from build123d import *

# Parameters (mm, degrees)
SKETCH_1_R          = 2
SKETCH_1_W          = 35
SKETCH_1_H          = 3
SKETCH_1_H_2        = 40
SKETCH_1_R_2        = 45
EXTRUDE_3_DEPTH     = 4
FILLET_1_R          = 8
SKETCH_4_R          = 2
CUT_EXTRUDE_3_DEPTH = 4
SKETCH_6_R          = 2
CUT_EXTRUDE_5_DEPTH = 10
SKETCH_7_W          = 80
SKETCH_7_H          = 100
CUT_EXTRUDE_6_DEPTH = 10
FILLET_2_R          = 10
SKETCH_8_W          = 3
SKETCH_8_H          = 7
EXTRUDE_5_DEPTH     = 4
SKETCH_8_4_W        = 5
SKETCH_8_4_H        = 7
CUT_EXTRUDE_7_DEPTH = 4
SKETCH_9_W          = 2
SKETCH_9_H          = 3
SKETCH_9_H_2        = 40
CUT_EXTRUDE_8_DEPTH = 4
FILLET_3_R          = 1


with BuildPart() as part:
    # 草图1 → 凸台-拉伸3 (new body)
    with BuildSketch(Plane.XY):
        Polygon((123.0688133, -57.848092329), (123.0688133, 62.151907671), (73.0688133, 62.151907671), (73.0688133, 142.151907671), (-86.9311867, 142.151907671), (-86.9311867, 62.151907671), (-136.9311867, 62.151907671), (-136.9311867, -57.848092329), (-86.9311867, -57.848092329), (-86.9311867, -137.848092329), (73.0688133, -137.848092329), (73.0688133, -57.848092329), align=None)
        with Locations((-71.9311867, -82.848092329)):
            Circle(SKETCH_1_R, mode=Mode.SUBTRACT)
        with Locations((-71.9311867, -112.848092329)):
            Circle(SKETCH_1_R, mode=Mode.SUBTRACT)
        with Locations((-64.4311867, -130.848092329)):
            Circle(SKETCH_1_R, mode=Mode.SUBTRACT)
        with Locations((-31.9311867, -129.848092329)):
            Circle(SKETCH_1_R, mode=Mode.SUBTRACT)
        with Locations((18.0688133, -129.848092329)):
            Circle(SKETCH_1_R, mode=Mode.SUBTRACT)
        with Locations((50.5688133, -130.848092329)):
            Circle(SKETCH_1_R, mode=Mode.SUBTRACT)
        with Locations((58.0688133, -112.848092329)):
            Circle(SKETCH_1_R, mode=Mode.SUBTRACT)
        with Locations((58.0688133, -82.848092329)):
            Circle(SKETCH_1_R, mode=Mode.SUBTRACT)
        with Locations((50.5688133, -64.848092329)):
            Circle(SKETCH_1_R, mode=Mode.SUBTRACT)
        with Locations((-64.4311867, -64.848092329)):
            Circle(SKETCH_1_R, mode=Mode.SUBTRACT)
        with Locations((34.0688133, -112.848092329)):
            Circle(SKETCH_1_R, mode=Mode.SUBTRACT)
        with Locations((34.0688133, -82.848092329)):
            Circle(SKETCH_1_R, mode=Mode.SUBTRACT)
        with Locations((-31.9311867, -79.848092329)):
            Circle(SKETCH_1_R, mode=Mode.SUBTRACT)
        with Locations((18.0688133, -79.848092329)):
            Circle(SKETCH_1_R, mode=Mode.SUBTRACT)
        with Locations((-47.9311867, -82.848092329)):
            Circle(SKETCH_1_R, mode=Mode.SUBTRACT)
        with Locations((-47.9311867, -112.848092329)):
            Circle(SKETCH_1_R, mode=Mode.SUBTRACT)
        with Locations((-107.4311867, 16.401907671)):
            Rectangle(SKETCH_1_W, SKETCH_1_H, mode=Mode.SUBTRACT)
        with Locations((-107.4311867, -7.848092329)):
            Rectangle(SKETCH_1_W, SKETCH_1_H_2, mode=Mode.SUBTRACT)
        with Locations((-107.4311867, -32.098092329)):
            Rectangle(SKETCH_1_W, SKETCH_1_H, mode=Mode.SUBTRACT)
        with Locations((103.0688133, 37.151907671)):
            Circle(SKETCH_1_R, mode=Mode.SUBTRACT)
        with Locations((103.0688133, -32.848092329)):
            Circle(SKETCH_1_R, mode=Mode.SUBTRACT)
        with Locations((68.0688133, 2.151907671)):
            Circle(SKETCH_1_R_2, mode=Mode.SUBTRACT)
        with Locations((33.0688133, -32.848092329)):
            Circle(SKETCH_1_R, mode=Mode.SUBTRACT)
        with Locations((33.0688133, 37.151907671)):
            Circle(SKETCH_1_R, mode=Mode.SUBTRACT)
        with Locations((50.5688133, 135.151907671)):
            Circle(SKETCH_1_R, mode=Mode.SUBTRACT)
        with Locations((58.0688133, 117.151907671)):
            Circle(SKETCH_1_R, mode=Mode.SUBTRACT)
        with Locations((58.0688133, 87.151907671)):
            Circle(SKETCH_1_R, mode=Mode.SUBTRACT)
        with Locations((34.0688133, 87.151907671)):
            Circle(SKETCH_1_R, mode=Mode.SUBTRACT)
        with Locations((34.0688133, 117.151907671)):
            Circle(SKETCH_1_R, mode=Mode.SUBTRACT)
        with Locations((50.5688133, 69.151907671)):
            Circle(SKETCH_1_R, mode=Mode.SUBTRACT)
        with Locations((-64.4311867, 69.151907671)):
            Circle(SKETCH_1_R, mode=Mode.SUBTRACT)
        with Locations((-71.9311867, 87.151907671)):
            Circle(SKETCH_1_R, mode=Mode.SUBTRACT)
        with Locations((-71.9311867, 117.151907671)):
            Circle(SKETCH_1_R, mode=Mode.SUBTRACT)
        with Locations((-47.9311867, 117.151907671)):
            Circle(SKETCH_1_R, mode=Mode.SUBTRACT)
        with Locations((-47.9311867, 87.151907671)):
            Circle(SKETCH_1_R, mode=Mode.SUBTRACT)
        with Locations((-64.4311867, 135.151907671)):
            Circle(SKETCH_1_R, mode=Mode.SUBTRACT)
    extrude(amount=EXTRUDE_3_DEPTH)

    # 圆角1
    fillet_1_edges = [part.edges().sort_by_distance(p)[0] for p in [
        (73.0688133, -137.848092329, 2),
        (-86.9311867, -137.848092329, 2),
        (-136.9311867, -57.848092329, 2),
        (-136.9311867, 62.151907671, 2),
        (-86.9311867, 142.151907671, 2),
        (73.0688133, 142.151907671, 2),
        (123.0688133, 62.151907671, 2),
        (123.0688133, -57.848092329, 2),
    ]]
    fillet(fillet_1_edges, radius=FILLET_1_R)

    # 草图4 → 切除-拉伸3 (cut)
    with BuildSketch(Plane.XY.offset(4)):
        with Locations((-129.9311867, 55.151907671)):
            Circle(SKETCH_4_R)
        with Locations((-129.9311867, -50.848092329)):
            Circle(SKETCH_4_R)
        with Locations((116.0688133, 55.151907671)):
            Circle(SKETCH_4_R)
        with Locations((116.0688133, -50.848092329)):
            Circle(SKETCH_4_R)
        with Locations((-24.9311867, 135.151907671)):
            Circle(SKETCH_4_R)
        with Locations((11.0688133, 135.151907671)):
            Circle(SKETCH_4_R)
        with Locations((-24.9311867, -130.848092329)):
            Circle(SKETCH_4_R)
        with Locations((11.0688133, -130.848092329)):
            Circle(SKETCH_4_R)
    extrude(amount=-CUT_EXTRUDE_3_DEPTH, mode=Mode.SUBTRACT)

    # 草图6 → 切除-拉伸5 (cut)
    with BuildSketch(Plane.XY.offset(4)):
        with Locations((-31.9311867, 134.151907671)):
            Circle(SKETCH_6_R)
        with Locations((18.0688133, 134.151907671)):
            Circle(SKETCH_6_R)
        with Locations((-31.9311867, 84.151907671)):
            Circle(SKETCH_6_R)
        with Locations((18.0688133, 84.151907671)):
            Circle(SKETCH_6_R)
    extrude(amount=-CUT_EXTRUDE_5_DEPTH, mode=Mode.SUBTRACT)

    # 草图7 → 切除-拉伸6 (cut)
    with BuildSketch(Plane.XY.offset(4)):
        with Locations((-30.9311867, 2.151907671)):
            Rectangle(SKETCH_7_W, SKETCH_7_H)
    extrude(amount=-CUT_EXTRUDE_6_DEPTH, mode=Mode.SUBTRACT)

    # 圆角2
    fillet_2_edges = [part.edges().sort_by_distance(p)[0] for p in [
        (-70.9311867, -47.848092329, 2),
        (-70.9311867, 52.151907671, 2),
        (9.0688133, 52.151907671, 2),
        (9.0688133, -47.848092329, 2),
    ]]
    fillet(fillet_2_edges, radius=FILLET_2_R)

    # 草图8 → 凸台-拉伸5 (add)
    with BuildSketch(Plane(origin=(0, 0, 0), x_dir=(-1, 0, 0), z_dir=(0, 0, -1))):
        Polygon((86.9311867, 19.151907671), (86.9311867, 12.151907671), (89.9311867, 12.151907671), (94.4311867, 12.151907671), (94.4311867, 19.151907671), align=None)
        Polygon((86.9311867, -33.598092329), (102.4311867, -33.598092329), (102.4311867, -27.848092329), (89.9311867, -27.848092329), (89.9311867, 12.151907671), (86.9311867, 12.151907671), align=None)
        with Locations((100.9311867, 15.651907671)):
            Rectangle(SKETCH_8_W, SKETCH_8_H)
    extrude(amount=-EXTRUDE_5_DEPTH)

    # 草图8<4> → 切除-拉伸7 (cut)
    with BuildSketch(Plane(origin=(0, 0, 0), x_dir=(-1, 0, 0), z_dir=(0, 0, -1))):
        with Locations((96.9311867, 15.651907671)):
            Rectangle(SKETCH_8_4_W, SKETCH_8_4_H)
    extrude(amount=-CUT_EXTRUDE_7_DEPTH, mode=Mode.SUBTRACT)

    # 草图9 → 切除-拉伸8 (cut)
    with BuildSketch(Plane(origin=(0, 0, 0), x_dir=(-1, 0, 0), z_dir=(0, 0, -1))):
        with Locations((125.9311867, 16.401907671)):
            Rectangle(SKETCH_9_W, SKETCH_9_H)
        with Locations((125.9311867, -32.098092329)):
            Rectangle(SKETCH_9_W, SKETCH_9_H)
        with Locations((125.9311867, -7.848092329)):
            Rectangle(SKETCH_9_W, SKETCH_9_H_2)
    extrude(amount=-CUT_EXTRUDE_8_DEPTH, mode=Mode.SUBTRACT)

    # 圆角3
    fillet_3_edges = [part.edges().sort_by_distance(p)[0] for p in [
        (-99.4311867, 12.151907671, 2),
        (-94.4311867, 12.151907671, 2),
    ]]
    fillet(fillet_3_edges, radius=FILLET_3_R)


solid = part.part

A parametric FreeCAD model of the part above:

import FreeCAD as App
import Part
import Sketcher


def edges_at(feature, points):
    """Names of the edges that pass closest to the given points."""
    edges = feature.Shape.Edges
    near = lambda p: min(range(len(edges)), key=lambda i: edges[i].distToShape(Part.Vertex(*p))[0])
    return sorted({f"Edge{near(p) + 1}" for p in points})

doc = App.newDocument("Part")
params = doc.addObject("Spreadsheet::Sheet", "Params")
for row, (alias, value) in enumerate([
    ("sketch1_diameter", "4 mm"),
    ("sketch1_diameter2", "90 mm"),
    ("sketch1_width", "50 mm"),
    ("sketch1_width2", "160 mm"),
    ("sketch1_width3", "35 mm"),
    ("pad1_length", "4 mm"),
    ("fillet_radius", "8 mm"),
    ("sketch2_diameter", "4 mm"),
    ("pocket1_length", "4 mm"),
    ("sketch3_diameter", "4 mm"),
    ("pocket2_length", "10 mm"),
    ("sketch4_width", "80 mm"),
    ("sketch4_height", "100 mm"),
    ("pocket3_length", "10 mm"),
    ("fillet2_radius", "10 mm"),
    ("sketch5_width", "3 mm"),
    ("sketch5_height", "40 mm"),
    ("sketch5_height2", "7 mm"),
    ("sketch5_width2", "15.5 mm"),
    ("sketch5_width3", "12.5 mm"),
    ("pad2_length", "4 mm"),
    ("sketch6_width", "5 mm"),
    ("sketch6_height", "7 mm"),
    ("pocket4_length", "4 mm"),
    ("sketch7_width", "2 mm"),
    ("sketch7_height", "3 mm"),
    ("sketch7_height2", "40 mm"),
    ("pocket5_length", "4 mm"),
    ("fillet3_radius", "1 mm"),
], start=1):
    params.set(f"A{row}", alias)
    params.set(f"B{row}", "=" + value)
    params.setAlias(f"B{row}", alias)

body = doc.addObject("PartDesign::Body", "Body")

sketch1 = body.newObject("Sketcher::SketchObject", "Sketch")
sketch1.AttachmentSupport = (doc.getObject("XY_Plane"), [""])
sketch1.MapMode = "FlatFace"
sketch1.addGeometry([
    Part.LineSegment(App.Vector(123.1, -57.8, 0), App.Vector(123.1, 62.2, 0)),
    Part.LineSegment(App.Vector(123.1, 62.2, 0), App.Vector(73.1, 62.2, 0)),
    Part.LineSegment(App.Vector(73.1, 62.2, 0), App.Vector(73.1, 142.2, 0)),
    Part.LineSegment(App.Vector(73.1, 142.2, 0), App.Vector(-86.9, 142.2, 0)),
    Part.LineSegment(App.Vector(-86.9, 142.2, 0), App.Vector(-86.9, 62.2, 0)),
    Part.LineSegment(App.Vector(-86.9, 62.2, 0), App.Vector(-136.9, 62.2, 0)),
    Part.LineSegment(App.Vector(-136.9, 62.2, 0), App.Vector(-136.9, -57.8, 0)),
    Part.LineSegment(App.Vector(-136.9, -57.8, 0), App.Vector(-86.9, -57.8, 0)),
    Part.LineSegment(App.Vector(-86.9, -57.8, 0), App.Vector(-86.9, -137.8, 0)),
    Part.LineSegment(App.Vector(-86.9, -137.8, 0), App.Vector(73.1, -137.8, 0)),
    Part.LineSegment(App.Vector(73.1, -137.8, 0), App.Vector(73.1, -57.8, 0)),
    Part.LineSegment(App.Vector(73.1, -57.8, 0), App.Vector(123.1, -57.8, 0)),
    Part.Circle(App.Vector(-71.9, -112.8, 0), App.Vector(0, 0, 1), 2),
    Part.Circle(App.Vector(-71.9, -82.8, 0), App.Vector(0, 0, 1), 2),
    Part.Circle(App.Vector(-64.4, -130.8, 0), App.Vector(0, 0, 1), 2),
    Part.Circle(App.Vector(-47.9, -112.8, 0), App.Vector(0, 0, 1), 2),
    Part.Circle(App.Vector(-31.9, -129.8, 0), App.Vector(0, 0, 1), 2),
    Part.Circle(App.Vector(-47.9, -82.8, 0), App.Vector(0, 0, 1), 2),
    Part.Circle(App.Vector(-31.9, -79.8, 0), App.Vector(0, 0, 1), 2),
    Part.LineSegment(App.Vector(-89.9, -33.6, 0), App.Vector(-124.9, -33.6, 0)),
    Part.LineSegment(App.Vector(-124.9, -33.6, 0), App.Vector(-124.9, -30.6, 0)),
    Part.LineSegment(App.Vector(-124.9, -30.6, 0), App.Vector(-89.9, -30.6, 0)),
    Part.LineSegment(App.Vector(-89.9, -30.6, 0), App.Vector(-89.9, -33.6, 0)),
    Part.LineSegment(App.Vector(-89.9, -27.8, 0), App.Vector(-124.9, -27.8, 0)),
    Part.LineSegment(App.Vector(-124.9, -27.8, 0), App.Vector(-124.9, 12.2, 0)),
    Part.LineSegment(App.Vector(-124.9, 12.2, 0), App.Vector(-89.9, 12.2, 0)),
    Part.LineSegment(App.Vector(-89.9, 12.2, 0), App.Vector(-89.9, -27.8, 0)),
    Part.Circle(App.Vector(-64.4, -64.8, 0), App.Vector(0, 0, 1), 2),
    Part.Circle(App.Vector(18.1, -129.8, 0), App.Vector(0, 0, 1), 2),
    Part.Circle(App.Vector(50.6, -130.8, 0), App.Vector(0, 0, 1), 2),
    Part.Circle(App.Vector(34.1, -112.8, 0), App.Vector(0, 0, 1), 2),
    Part.Circle(App.Vector(18.1, -79.8, 0), App.Vector(0, 0, 1), 2),
    Part.Circle(App.Vector(34.1, -82.8, 0), App.Vector(0, 0, 1), 2),
    Part.Circle(App.Vector(58.1, -112.8, 0), App.Vector(0, 0, 1), 2),
    Part.Circle(App.Vector(58.1, -82.8, 0), App.Vector(0, 0, 1), 2),
    Part.Circle(App.Vector(50.6, -64.8, 0), App.Vector(0, 0, 1), 2),
    Part.Circle(App.Vector(33.1, -32.8, 0), App.Vector(0, 0, 1), 2),
    Part.Circle(App.Vector(103.1, -32.8, 0), App.Vector(0, 0, 1), 2),
    Part.LineSegment(App.Vector(-89.9, 14.9, 0), App.Vector(-124.9, 14.9, 0)),
    Part.LineSegment(App.Vector(-124.9, 14.9, 0), App.Vector(-124.9, 17.9, 0)),
    Part.LineSegment(App.Vector(-124.9, 17.9, 0), App.Vector(-89.9, 17.9, 0)),
    Part.LineSegment(App.Vector(-89.9, 17.9, 0), App.Vector(-89.9, 14.9, 0)),
    Part.Circle(App.Vector(-64.4, 69.2, 0), App.Vector(0, 0, 1), 2),
    Part.Circle(App.Vector(-71.9, 87.2, 0), App.Vector(0, 0, 1), 2),
    Part.Circle(App.Vector(-71.9, 117.2, 0), App.Vector(0, 0, 1), 2),
    Part.Circle(App.Vector(-47.9, 87.2, 0), App.Vector(0, 0, 1), 2),
    Part.Circle(App.Vector(-47.9, 117.2, 0), App.Vector(0, 0, 1), 2),
    Part.Circle(App.Vector(-64.4, 135.2, 0), App.Vector(0, 0, 1), 2),
    Part.Circle(App.Vector(33.1, 37.2, 0), App.Vector(0, 0, 1), 2),
    Part.Circle(App.Vector(50.6, 69.2, 0), App.Vector(0, 0, 1), 2),
    Part.Circle(App.Vector(68.1, 2.2, 0), App.Vector(0, 0, 1), 45),
    Part.Circle(App.Vector(103.1, 37.2, 0), App.Vector(0, 0, 1), 2),
    Part.Circle(App.Vector(34.1, 87.2, 0), App.Vector(0, 0, 1), 2),
    Part.Circle(App.Vector(34.1, 117.2, 0), App.Vector(0, 0, 1), 2),
    Part.Circle(App.Vector(50.6, 135.2, 0), App.Vector(0, 0, 1), 2),
    Part.Circle(App.Vector(58.1, 87.2, 0), App.Vector(0, 0, 1), 2),
    Part.Circle(App.Vector(58.1, 117.2, 0), App.Vector(0, 0, 1), 2),
], False)
sketch1.addConstraint([
    Sketcher.Constraint("Coincident", 0, 2, 1, 1),
    Sketcher.Constraint("Coincident", 1, 2, 2, 1),
    Sketcher.Constraint("Coincident", 2, 2, 3, 1),
    Sketcher.Constraint("Coincident", 3, 2, 4, 1),
    Sketcher.Constraint("Coincident", 4, 2, 5, 1),
    Sketcher.Constraint("Coincident", 5, 2, 6, 1),
    Sketcher.Constraint("Coincident", 6, 2, 7, 1),
    Sketcher.Constraint("Coincident", 7, 2, 8, 1),
    Sketcher.Constraint("Coincident", 8, 2, 9, 1),
    Sketcher.Constraint("Coincident", 9, 2, 10, 1),
    Sketcher.Constraint("Coincident", 10, 2, 11, 1),
    Sketcher.Constraint("Coincident", 11, 2, 0, 1),
    Sketcher.Constraint("Coincident", 19, 2, 20, 1),
    Sketcher.Constraint("Coincident", 20, 2, 21, 1),
    Sketcher.Constraint("Coincident", 21, 2, 22, 1),
    Sketcher.Constraint("Coincident", 22, 2, 19, 1),
    Sketcher.Constraint("Coincident", 23, 2, 24, 1),
    Sketcher.Constraint("Coincident", 24, 2, 25, 1),
    Sketcher.Constraint("Coincident", 25, 2, 26, 1),
    Sketcher.Constraint("Coincident", 26, 2, 23, 1),
    Sketcher.Constraint("Coincident", 38, 2, 39, 1),
    Sketcher.Constraint("Coincident", 39, 2, 40, 1),
    Sketcher.Constraint("Coincident", 40, 2, 41, 1),
    Sketcher.Constraint("Coincident", 41, 2, 38, 1),
    Sketcher.Constraint("Vertical", 0),
    Sketcher.Constraint("Horizontal", 1),
    Sketcher.Constraint("Vertical", 2),
    Sketcher.Constraint("Horizontal", 3),
    Sketcher.Constraint("Vertical", 4),
    Sketcher.Constraint("Horizontal", 5),
    Sketcher.Constraint("Vertical", 6),
    Sketcher.Constraint("Horizontal", 7),
    Sketcher.Constraint("Vertical", 8),
    Sketcher.Constraint("Horizontal", 9),
    Sketcher.Constraint("Vertical", 10),
    Sketcher.Constraint("Horizontal", 11),
    Sketcher.Constraint("Horizontal", 19),
    Sketcher.Constraint("Vertical", 20),
    Sketcher.Constraint("Horizontal", 21),
    Sketcher.Constraint("Vertical", 22),
    Sketcher.Constraint("Horizontal", 23),
    Sketcher.Constraint("Vertical", 24),
    Sketcher.Constraint("Horizontal", 25),
    Sketcher.Constraint("Vertical", 26),
    Sketcher.Constraint("Horizontal", 38),
    Sketcher.Constraint("Vertical", 39),
    Sketcher.Constraint("Horizontal", 40),
    Sketcher.Constraint("Vertical", 41),
    Sketcher.Constraint("Equal", 12, 13),
    Sketcher.Constraint("Equal", 13, 14),
    Sketcher.Constraint("Equal", 14, 15),
    Sketcher.Constraint("Equal", 15, 16),
    Sketcher.Constraint("Equal", 16, 17),
    Sketcher.Constraint("Equal", 17, 18),
    Sketcher.Constraint("Equal", 18, 27),
    Sketcher.Constraint("Equal", 27, 28),
    Sketcher.Constraint("Equal", 28, 29),
    Sketcher.Constraint("Equal", 29, 30),
    Sketcher.Constraint("Equal", 30, 31),
    Sketcher.Constraint("Equal", 31, 32),
    Sketcher.Constraint("Equal", 32, 33),
    Sketcher.Constraint("Equal", 33, 34),
    Sketcher.Constraint("Equal", 34, 35),
    Sketcher.Constraint("Equal", 35, 36),
    Sketcher.Constraint("Equal", 36, 37),
    Sketcher.Constraint("Equal", 37, 42),
    Sketcher.Constraint("Equal", 42, 43),
    Sketcher.Constraint("Equal", 43, 44),
    Sketcher.Constraint("Equal", 44, 45),
    Sketcher.Constraint("Equal", 45, 46),
    Sketcher.Constraint("Equal", 46, 47),
    Sketcher.Constraint("Equal", 47, 48),
    Sketcher.Constraint("Equal", 48, 49),
    Sketcher.Constraint("Equal", 49, 51),
    Sketcher.Constraint("Equal", 51, 52),
    Sketcher.Constraint("Equal", 52, 53),
    Sketcher.Constraint("Equal", 53, 54),
    Sketcher.Constraint("Equal", 54, 55),
    Sketcher.Constraint("Equal", 55, 56),
    Sketcher.Constraint("Horizontal", 12, 3, 15, 3),
    Sketcher.Constraint("Horizontal", 13, 3, 17, 3),
    Sketcher.Constraint("Horizontal", 16, 3, 28, 3),
    Sketcher.Constraint("Horizontal", 14, 3, 29, 3),
    Sketcher.Constraint("Horizontal", 15, 3, 30, 3),
    Sketcher.Constraint("Horizontal", 18, 3, 31, 3),
    Sketcher.Constraint("Horizontal", 17, 3, 32, 3),
    Sketcher.Constraint("Horizontal", 30, 3, 33, 3),
    Sketcher.Constraint("Horizontal", 32, 3, 34, 3),
    Sketcher.Constraint("Horizontal", 27, 3, 35, 3),
    Sketcher.Constraint("Horizontal", 36, 3, 37, 3),
    Sketcher.Constraint("Horizontal", 43, 3, 45, 3),
    Sketcher.Constraint("Horizontal", 44, 3, 46, 3),
    Sketcher.Constraint("Horizontal", 42, 3, 49, 3),
    Sketcher.Constraint("Horizontal", 48, 3, 51, 3),
    Sketcher.Constraint("Horizontal", 45, 3, 52, 3),
    Sketcher.Constraint("Horizontal", 46, 3, 53, 3),
    Sketcher.Constraint("Horizontal", 47, 3, 54, 3),
    Sketcher.Constraint("Horizontal", 52, 3, 55, 3),
    Sketcher.Constraint("Horizontal", 53, 3, 56, 3),
    Sketcher.Constraint("Horizontal", 1, 2, 4, 2),
    Sketcher.Constraint("Horizontal", 7, 2, 10, 2),
    Sketcher.Constraint("Vertical", 12, 3, 13, 3),
    Sketcher.Constraint("Vertical", 15, 3, 17, 3),
    Sketcher.Constraint("Vertical", 16, 3, 18, 3),
    Sketcher.Constraint("Vertical", 14, 3, 27, 3),
    Sketcher.Constraint("Vertical", 28, 3, 31, 3),
    Sketcher.Constraint("Vertical", 30, 3, 32, 3),
    Sketcher.Constraint("Vertical", 33, 3, 34, 3),
    Sketcher.Constraint("Vertical", 29, 3, 35, 3),
    Sketcher.Constraint("Vertical", 27, 3, 42, 3),
    Sketcher.Constraint("Vertical", 13, 3, 43, 3),
    Sketcher.Constraint("Vertical", 43, 3, 44, 3),
    Sketcher.Constraint("Vertical", 17, 3, 45, 3),
    Sketcher.Constraint("Vertical", 45, 3, 46, 3),
    Sketcher.Constraint("Vertical", 42, 3, 47, 3),
    Sketcher.Constraint("Vertical", 36, 3, 48, 3),
    Sketcher.Constraint("Vertical", 35, 3, 49, 3),
    Sketcher.Constraint("Vertical", 37, 3, 51, 3),
    Sketcher.Constraint("Vertical", 32, 3, 52, 3),
    Sketcher.Constraint("Vertical", 52, 3, 53, 3),
    Sketcher.Constraint("Vertical", 49, 3, 54, 3),
    Sketcher.Constraint("Vertical", 34, 3, 55, 3),
    Sketcher.Constraint("Vertical", 55, 3, 56, 3),
    Sketcher.Constraint("Vertical", 4, 2, 7, 2),
    Sketcher.Constraint("Vertical", 2, 2, 9, 2),
    Sketcher.Constraint("Vertical", 20, 2, 23, 2),
    Sketcher.Constraint("Vertical", 22, 2, 25, 2),
    Sketcher.Constraint("Vertical", 24, 2, 38, 2),
    Sketcher.Constraint("Vertical", 26, 2, 40, 2),
    Sketcher.Constraint("Equal", 1, 5),
    Sketcher.Constraint("Equal", 4, 8),
    Sketcher.Constraint("Equal", 22, 39),
    Sketcher.Constraint("Diameter", 12, 4.0),
    Sketcher.Constraint("Diameter", 50, 90.0),
    Sketcher.Constraint("DistanceX", 1, 2, 1, 1, 50.0),
    Sketcher.Constraint("DistanceX", 3, 2, 3, 1, 160.0),
    Sketcher.Constraint("DistanceX", 19, 2, 19, 1, 35.0),
    Sketcher.Constraint("DistanceY", 0, 1, 0, 2, 120.0),
    Sketcher.Constraint("DistanceY", 2, 1, 2, 2, 80.0),
    Sketcher.Constraint("DistanceY", 20, 1, 20, 2, 3.0),
    Sketcher.Constraint("DistanceY", 24, 1, 24, 2, 40.0),
    Sketcher.Constraint("DistanceY", 12, 3, 13, 3, 30.0),
    Sketcher.Constraint("DistanceY", 14, 3, 12, 3, 18.0),
    Sketcher.Constraint("DistanceX", 12, 3, 15, 3, 24.0),
    Sketcher.Constraint("DistanceX", 15, 3, 16, 3, 16.0),
    Sketcher.Constraint("DistanceY", 16, 3, 15, 3, 17.0),
    Sketcher.Constraint("DistanceY", 17, 3, 18, 3, 3.0),
    Sketcher.Constraint("DistanceY", 13, 3, 27, 3, 18.0),
    Sketcher.Constraint("DistanceX", 16, 3, 28, 3, 50.0),
    Sketcher.Constraint("DistanceX", 28, 3, 30, 3, 16.0),
    Sketcher.Constraint("DistanceX", 30, 3, 33, 3, 24.0),
    Sketcher.Constraint("DistanceY", 35, 3, 36, 3, 32.0),
    Sketcher.Constraint("DistanceX", 31, 3, 36, 3, 15.0),
    Sketcher.Constraint("DistanceX", 34, 3, 37, 3, 45.0),
    Sketcher.Constraint("DistanceY", 27, 3, 42, 3, 134.0),
    Sketcher.Constraint("DistanceY", 42, 3, 43, 3, 18.0),
    Sketcher.Constraint("DistanceY", 43, 3, 44, 3, 30.0),
    Sketcher.Constraint("DistanceY", 44, 3, 47, 3, 18.0),
    Sketcher.Constraint("DistanceY", 36, 3, 48, 3, 70.0),
    Sketcher.Constraint("DistanceX", 36, 3, 50, 3, 35.0),
    Sketcher.Constraint("DistanceY", 36, 3, 50, 3, 35.0),
    Sketcher.Constraint("DistanceX", 51, 3, 0, 2, 20.0),
    Sketcher.Constraint("DistanceY", 51, 3, 0, 2, 25.0),
    Sketcher.Constraint("DistanceX", 6, 2, 19, 2, 12.0),
    Sketcher.Constraint("DistanceY", 6, 2, 23, 2, 30.0),
    Sketcher.Constraint("DistanceX", 12, 3, 14, 3, 7.5),
    Sketcher.Constraint("DistanceX", 28, 3, 29, 3, 32.5),
    Sketcher.Constraint("DistanceY", 20, 2, 38, 2, 45.5),
    Sketcher.Constraint("DistanceY", 6, 2, 19, 2, 24.25),
    Sketcher.Constraint("DistanceX", 12, 3, -1, 1, 71.931187),
    Sketcher.Constraint("DistanceY", 12, 3, -1, 1, 112.848092),
])
sketch1.setExpression("Constraints[132]", "Params.sketch1_diameter")
sketch1.setExpression("Constraints[133]", "Params.sketch1_diameter2")
sketch1.setExpression("Constraints[134]", "Params.sketch1_width")
sketch1.setExpression("Constraints[135]", "Params.sketch1_width2")
sketch1.setExpression("Constraints[136]", "Params.sketch1_width3")
pad1 = body.newObject("PartDesign::Pad", "Pad")
pad1.Profile = sketch1
pad1.setExpression("Length", "Params.pad1_length")
doc.recompute()

fillet = body.newObject("PartDesign::Fillet", "Fillet")
fillet.Base = (pad1, edges_at(pad1, [
    (73.069, -137.848, 2),
    (-86.931, -137.848, 2),
    (-136.931, -57.848, 2),
    (-136.931, 62.152, 2),
    (-86.931, 142.152, 2),
    (73.069, 142.152, 2),
    (123.069, 62.152, 2),
    (123.069, -57.848, 2),
]))
fillet.setExpression("Radius", "Params.fillet_radius")

sketch2 = body.newObject("Sketcher::SketchObject", "Sketch001")
sketch2.AttachmentSupport = (doc.getObject("XY_Plane"), [""])
sketch2.MapMode = "FlatFace"
sketch2.AttachmentOffset = App.Placement(App.Vector(0, 0, 4), App.Rotation())
sketch2.addGeometry([
    Part.Circle(App.Vector(-129.9, 55.2, 0), App.Vector(0, 0, 1), 2),
    Part.Circle(App.Vector(-129.9, -50.8, 0), App.Vector(0, 0, 1), 2),
    Part.Circle(App.Vector(116.1, 55.2, 0), App.Vector(0, 0, 1), 2),
    Part.Circle(App.Vector(116.1, -50.8, 0), App.Vector(0, 0, 1), 2),
    Part.Circle(App.Vector(-24.9, 135.2, 0), App.Vector(0, 0, 1), 2),
    Part.Circle(App.Vector(11.1, 135.2, 0), App.Vector(0, 0, 1), 2),
    Part.Circle(App.Vector(-24.9, -130.8, 0), App.Vector(0, 0, 1), 2),
    Part.Circle(App.Vector(11.1, -130.8, 0), App.Vector(0, 0, 1), 2),
], False)
sketch2.addConstraint([
    Sketcher.Constraint("Equal", 0, 1),
    Sketcher.Constraint("Equal", 1, 2),
    Sketcher.Constraint("Equal", 2, 3),
    Sketcher.Constraint("Equal", 3, 4),
    Sketcher.Constraint("Equal", 4, 5),
    Sketcher.Constraint("Equal", 5, 6),
    Sketcher.Constraint("Equal", 6, 7),
    Sketcher.Constraint("Horizontal", 0, 3, 2, 3),
    Sketcher.Constraint("Horizontal", 1, 3, 3, 3),
    Sketcher.Constraint("Horizontal", 4, 3, 5, 3),
    Sketcher.Constraint("Horizontal", 6, 3, 7, 3),
    Sketcher.Constraint("Vertical", 0, 3, 1, 3),
    Sketcher.Constraint("Vertical", 2, 3, 3, 3),
    Sketcher.Constraint("Vertical", 4, 3, 6, 3),
    Sketcher.Constraint("Vertical", 5, 3, 7, 3),
    Sketcher.Constraint("Diameter", 0, 4.0),
    Sketcher.Constraint("DistanceY", 1, 3, 0, 3, 106.0),
    Sketcher.Constraint("DistanceX", 0, 3, 2, 3, 246.0),
    Sketcher.Constraint("DistanceX", 0, 3, 4, 3, 105.0),
    Sketcher.Constraint("DistanceY", 0, 3, 4, 3, 80.0),
    Sketcher.Constraint("DistanceX", 4, 3, 5, 3, 36.0),
    Sketcher.Constraint("DistanceY", 6, 3, 1, 3, 80.0),
    Sketcher.Constraint("DistanceX", 0, 3, -1, 1, 129.931187),
    Sketcher.Constraint("DistanceY", -1, 1, 0, 3, 55.151908),
])
sketch2.setExpression("Constraints[15]", "Params.sketch2_diameter")
pocket1 = body.newObject("PartDesign::Pocket", "Pocket")
pocket1.Profile = sketch2
pocket1.setExpression("Length", "Params.pocket1_length")

sketch3 = body.newObject("Sketcher::SketchObject", "Sketch002")
sketch3.AttachmentSupport = (doc.getObject("XY_Plane"), [""])
sketch3.MapMode = "FlatFace"
sketch3.AttachmentOffset = App.Placement(App.Vector(0, 0, 4), App.Rotation())
sketch3.addGeometry([
    Part.Circle(App.Vector(-31.9, 134.2, 0), App.Vector(0, 0, 1), 2),
    Part.Circle(App.Vector(18.1, 134.2, 0), App.Vector(0, 0, 1), 2),
    Part.Circle(App.Vector(-31.9, 84.2, 0), App.Vector(0, 0, 1), 2),
    Part.Circle(App.Vector(18.1, 84.2, 0), App.Vector(0, 0, 1), 2),
], False)
sketch3.addConstraint([
    Sketcher.Constraint("Equal", 0, 1),
    Sketcher.Constraint("Equal", 1, 2),
    Sketcher.Constraint("Equal", 2, 3),
    Sketcher.Constraint("Horizontal", 0, 3, 1, 3),
    Sketcher.Constraint("Horizontal", 2, 3, 3, 3),
    Sketcher.Constraint("Vertical", 0, 3, 2, 3),
    Sketcher.Constraint("Vertical", 1, 3, 3, 3),
    Sketcher.Constraint("Diameter", 0, 4.0),
    Sketcher.Constraint("DistanceX", 0, 3, 1, 3, 50.0),
    Sketcher.Constraint("DistanceY", 2, 3, 0, 3, 50.0),
    Sketcher.Constraint("DistanceX", 0, 3, -1, 1, 31.931187),
    Sketcher.Constraint("DistanceY", -1, 1, 0, 3, 134.151908),
])
sketch3.setExpression("Constraints[7]", "Params.sketch3_diameter")
pocket2 = body.newObject("PartDesign::Pocket", "Pocket001")
pocket2.Profile = sketch3
pocket2.setExpression("Length", "Params.pocket2_length")

sketch4 = body.newObject("Sketcher::SketchObject", "Sketch003")
sketch4.AttachmentSupport = (doc.getObject("XY_Plane"), [""])
sketch4.MapMode = "FlatFace"
sketch4.AttachmentOffset = App.Placement(App.Vector(0, 0, 4), App.Rotation())
sketch4.addGeometry([
    Part.LineSegment(App.Vector(-71, 52, 0), App.Vector(-71, -48, 0)),
    Part.LineSegment(App.Vector(-71, -48, 0), App.Vector(9, -48, 0)),
    Part.LineSegment(App.Vector(9, -48, 0), App.Vector(9, 52, 0)),
    Part.LineSegment(App.Vector(9, 52, 0), App.Vector(-71, 52, 0)),
], False)
sketch4.addConstraint([
    Sketcher.Constraint("Coincident", 0, 2, 1, 1),
    Sketcher.Constraint("Coincident", 1, 2, 2, 1),
    Sketcher.Constraint("Coincident", 2, 2, 3, 1),
    Sketcher.Constraint("Coincident", 3, 2, 0, 1),
    Sketcher.Constraint("Vertical", 0),
    Sketcher.Constraint("Horizontal", 1),
    Sketcher.Constraint("Vertical", 2),
    Sketcher.Constraint("Horizontal", 3),
    Sketcher.Constraint("DistanceX", 1, 1, 1, 2, 80.0),
    Sketcher.Constraint("DistanceY", 0, 2, 0, 1, 100.0),
    Sketcher.Constraint("DistanceX", 0, 2, -1, 1, 70.931187),
    Sketcher.Constraint("DistanceY", 0, 2, -1, 1, 47.848092),
])
sketch4.setExpression("Constraints[8]", "Params.sketch4_width")
sketch4.setExpression("Constraints[9]", "Params.sketch4_height")
pocket3 = body.newObject("PartDesign::Pocket", "Pocket002")
pocket3.Profile = sketch4
pocket3.setExpression("Length", "Params.pocket3_length")
doc.recompute()

fillet2 = body.newObject("PartDesign::Fillet", "Fillet001")
fillet2.Base = (pocket3, edges_at(pocket3, [
    (-70.931, -47.848, 2),
    (-70.931, 52.152, 2),
    (9.069, 52.152, 2),
    (9.069, -47.848, 2),
]))
fillet2.setExpression("Radius", "Params.fillet2_radius")

sketch5 = body.newObject("Sketcher::SketchObject", "Sketch004")
sketch5.AttachmentSupport = (doc.getObject("XY_Plane"), [""])
sketch5.MapMode = "FlatFace"
sketch5.addGeometry([
    Part.LineSegment(App.Vector(-86.9, 19.2, 0), App.Vector(-86.9, -33.6, 0)),
    Part.LineSegment(App.Vector(-86.9, -33.6, 0), App.Vector(-102.4, -33.6, 0)),
    Part.LineSegment(App.Vector(-102.4, -33.6, 0), App.Vector(-102.4, -27.8, 0)),
    Part.LineSegment(App.Vector(-102.4, -27.8, 0), App.Vector(-89.9, -27.8, 0)),
    Part.LineSegment(App.Vector(-89.9, -27.8, 0), App.Vector(-89.9, 12.2, 0)),
    Part.LineSegment(App.Vector(-89.9, 12.2, 0), App.Vector(-94.4, 12.2, 0)),
    Part.LineSegment(App.Vector(-94.4, 12.2, 0), App.Vector(-94.4, 19.2, 0)),
    Part.LineSegment(App.Vector(-94.4, 19.2, 0), App.Vector(-86.9, 19.2, 0)),
    Part.LineSegment(App.Vector(-99.4, 19.2, 0), App.Vector(-99.4, 12.2, 0)),
    Part.LineSegment(App.Vector(-99.4, 12.2, 0), App.Vector(-102.4, 12.2, 0)),
    Part.LineSegment(App.Vector(-102.4, 12.2, 0), App.Vector(-102.4, 19.2, 0)),
    Part.LineSegment(App.Vector(-102.4, 19.2, 0), App.Vector(-99.4, 19.2, 0)),
], False)
sketch5.addConstraint([
    Sketcher.Constraint("Coincident", 0, 2, 1, 1),
    Sketcher.Constraint("Coincident", 1, 2, 2, 1),
    Sketcher.Constraint("Coincident", 2, 2, 3, 1),
    Sketcher.Constraint("Coincident", 3, 2, 4, 1),
    Sketcher.Constraint("Coincident", 4, 2, 5, 1),
    Sketcher.Constraint("Coincident", 5, 2, 6, 1),
    Sketcher.Constraint("Coincident", 6, 2, 7, 1),
    Sketcher.Constraint("Coincident", 7, 2, 0, 1),
    Sketcher.Constraint("Coincident", 8, 2, 9, 1),
    Sketcher.Constraint("Coincident", 9, 2, 10, 1),
    Sketcher.Constraint("Coincident", 10, 2, 11, 1),
    Sketcher.Constraint("Coincident", 11, 2, 8, 1),
    Sketcher.Constraint("Vertical", 0),
    Sketcher.Constraint("Horizontal", 1),
    Sketcher.Constraint("Vertical", 2),
    Sketcher.Constraint("Horizontal", 3),
    Sketcher.Constraint("Vertical", 4),
    Sketcher.Constraint("Horizontal", 5),
    Sketcher.Constraint("Vertical", 6),
    Sketcher.Constraint("Horizontal", 7),
    Sketcher.Constraint("Vertical", 8),
    Sketcher.Constraint("Horizontal", 9),
    Sketcher.Constraint("Vertical", 10),
    Sketcher.Constraint("Horizontal", 11),
    Sketcher.Constraint("Horizontal", 5, 2, 8, 2),
    Sketcher.Constraint("Horizontal", 7, 2, 10, 2),
    Sketcher.Constraint("Vertical", 2, 2, 9, 2),
    Sketcher.Constraint("DistanceX", 9, 2, 9, 1, 3.0),
    Sketcher.Constraint("DistanceY", 4, 1, 4, 2, 40.0),
    Sketcher.Constraint("DistanceY", 6, 1, 6, 2, 7.0),
    Sketcher.Constraint("DistanceX", 1, 2, 1, 1, 15.5),
    Sketcher.Constraint("DistanceX", 3, 1, 3, 2, 12.5),
    Sketcher.Constraint("DistanceX", 5, 2, 5, 1, 4.5),
    Sketcher.Constraint("DistanceY", 0, 2, 0, 1, 52.75),
    Sketcher.Constraint("DistanceX", 0, 2, -1, 1, 86.931187),
    Sketcher.Constraint("DistanceY", 0, 2, -1, 1, 33.598092),
])
sketch5.setExpression("Constraints[27]", "Params.sketch5_width")
sketch5.setExpression("Constraints[28]", "Params.sketch5_height")
sketch5.setExpression("Constraints[29]", "Params.sketch5_height2")
sketch5.setExpression("Constraints[30]", "Params.sketch5_width2")
sketch5.setExpression("Constraints[31]", "Params.sketch5_width3")
pad2 = body.newObject("PartDesign::Pad", "Pad001")
pad2.Profile = sketch5
pad2.setExpression("Length", "Params.pad2_length")

sketch6 = body.newObject("Sketcher::SketchObject", "Sketch005")
sketch6.AttachmentSupport = (doc.getObject("XY_Plane"), [""])
sketch6.MapMode = "FlatFace"
sketch6.addGeometry([
    Part.LineSegment(App.Vector(-94, 19, 0), App.Vector(-94, 12, 0)),
    Part.LineSegment(App.Vector(-94, 12, 0), App.Vector(-99, 12, 0)),
    Part.LineSegment(App.Vector(-99, 12, 0), App.Vector(-99, 19, 0)),
    Part.LineSegment(App.Vector(-99, 19, 0), App.Vector(-94, 19, 0)),
], False)
sketch6.addConstraint([
    Sketcher.Constraint("Coincident", 0, 2, 1, 1),
    Sketcher.Constraint("Coincident", 1, 2, 2, 1),
    Sketcher.Constraint("Coincident", 2, 2, 3, 1),
    Sketcher.Constraint("Coincident", 3, 2, 0, 1),
    Sketcher.Constraint("Vertical", 0),
    Sketcher.Constraint("Horizontal", 1),
    Sketcher.Constraint("Vertical", 2),
    Sketcher.Constraint("Horizontal", 3),
    Sketcher.Constraint("DistanceX", 1, 2, 1, 1, 5.0),
    Sketcher.Constraint("DistanceY", 0, 2, 0, 1, 7.0),
    Sketcher.Constraint("DistanceX", 0, 2, -1, 1, 94.431187),
    Sketcher.Constraint("DistanceY", -1, 1, 0, 2, 12.151908),
])
sketch6.setExpression("Constraints[8]", "Params.sketch6_width")
sketch6.setExpression("Constraints[9]", "Params.sketch6_height")
pocket4 = body.newObject("PartDesign::Pocket", "Pocket003")
pocket4.Profile = sketch6
pocket4.setExpression("Length", "Params.pocket4_length")
pocket4.Reversed = True

sketch7 = body.newObject("Sketcher::SketchObject", "Sketch006")
sketch7.AttachmentSupport = (doc.getObject("XY_Plane"), [""])
sketch7.MapMode = "FlatFace"
sketch7.addGeometry([
    Part.LineSegment(App.Vector(-124.9, 17.9, 0), App.Vector(-124.9, 14.9, 0)),
    Part.LineSegment(App.Vector(-124.9, 14.9, 0), App.Vector(-126.9, 14.9, 0)),
    Part.LineSegment(App.Vector(-126.9, 14.9, 0), App.Vector(-126.9, 17.9, 0)),
    Part.LineSegment(App.Vector(-126.9, 17.9, 0), App.Vector(-124.9, 17.9, 0)),
    Part.LineSegment(App.Vector(-124.9, -30.6, 0), App.Vector(-124.9, -33.6, 0)),
    Part.LineSegment(App.Vector(-124.9, -33.6, 0), App.Vector(-126.9, -33.6, 0)),
    Part.LineSegment(App.Vector(-126.9, -33.6, 0), App.Vector(-126.9, -30.6, 0)),
    Part.LineSegment(App.Vector(-126.9, -30.6, 0), App.Vector(-124.9, -30.6, 0)),
    Part.LineSegment(App.Vector(-124.9, 12.2, 0), App.Vector(-124.9, -27.8, 0)),
    Part.LineSegment(App.Vector(-124.9, -27.8, 0), App.Vector(-126.9, -27.8, 0)),
    Part.LineSegment(App.Vector(-126.9, -27.8, 0), App.Vector(-126.9, 12.2, 0)),
    Part.LineSegment(App.Vector(-126.9, 12.2, 0), App.Vector(-124.9, 12.2, 0)),
], False)
sketch7.addConstraint([
    Sketcher.Constraint("Coincident", 0, 2, 1, 1),
    Sketcher.Constraint("Coincident", 1, 2, 2, 1),
    Sketcher.Constraint("Coincident", 2, 2, 3, 1),
    Sketcher.Constraint("Coincident", 3, 2, 0, 1),
    Sketcher.Constraint("Coincident", 4, 2, 5, 1),
    Sketcher.Constraint("Coincident", 5, 2, 6, 1),
    Sketcher.Constraint("Coincident", 6, 2, 7, 1),
    Sketcher.Constraint("Coincident", 7, 2, 4, 1),
    Sketcher.Constraint("Coincident", 8, 2, 9, 1),
    Sketcher.Constraint("Coincident", 9, 2, 10, 1),
    Sketcher.Constraint("Coincident", 10, 2, 11, 1),
    Sketcher.Constraint("Coincident", 11, 2, 8, 1),
    Sketcher.Constraint("Vertical", 0),
    Sketcher.Constraint("Horizontal", 1),
    Sketcher.Constraint("Vertical", 2),
    Sketcher.Constraint("Horizontal", 3),
    Sketcher.Constraint("Vertical", 4),
    Sketcher.Constraint("Horizontal", 5),
    Sketcher.Constraint("Vertical", 6),
    Sketcher.Constraint("Horizontal", 7),
    Sketcher.Constraint("Vertical", 8),
    Sketcher.Constraint("Horizontal", 9),
    Sketcher.Constraint("Vertical", 10),
    Sketcher.Constraint("Horizontal", 11),
    Sketcher.Constraint("Vertical", 3, 2, 4, 2),
    Sketcher.Constraint("Vertical", 2, 2, 5, 2),
    Sketcher.Constraint("Vertical", 7, 2, 8, 2),
    Sketcher.Constraint("Vertical", 6, 2, 9, 2),
    Sketcher.Constraint("Equal", 2, 4),
    Sketcher.Constraint("DistanceX", 1, 2, 1, 1, 2.0),
    Sketcher.Constraint("DistanceY", 0, 2, 0, 1, 3.0),
    Sketcher.Constraint("DistanceY", 8, 2, 8, 1, 40.0),
    Sketcher.Constraint("DistanceY", 4, 2, 0, 2, 48.5),
    Sketcher.Constraint("DistanceY", 7, 2, 8, 2, 2.75),
    Sketcher.Constraint("DistanceX", 0, 2, -1, 1, 124.931187),
    Sketcher.Constraint("DistanceY", -1, 1, 0, 2, 14.901908),
])
sketch7.setExpression("Constraints[29]", "Params.sketch7_width")
sketch7.setExpression("Constraints[30]", "Params.sketch7_height")
sketch7.setExpression("Constraints[31]", "Params.sketch7_height2")
pocket5 = body.newObject("PartDesign::Pocket", "Pocket004")
pocket5.Profile = sketch7
pocket5.setExpression("Length", "Params.pocket5_length")
pocket5.Reversed = True
doc.recompute()

fillet3 = body.newObject("PartDesign::Fillet", "Fillet002")
fillet3.Base = (pocket5, edges_at(pocket5, [(-99.431, 12.152, 2), (-94.431, 12.152, 2)]))
fillet3.setExpression("Radius", "Params.fillet3_radius")

doc.recompute()
